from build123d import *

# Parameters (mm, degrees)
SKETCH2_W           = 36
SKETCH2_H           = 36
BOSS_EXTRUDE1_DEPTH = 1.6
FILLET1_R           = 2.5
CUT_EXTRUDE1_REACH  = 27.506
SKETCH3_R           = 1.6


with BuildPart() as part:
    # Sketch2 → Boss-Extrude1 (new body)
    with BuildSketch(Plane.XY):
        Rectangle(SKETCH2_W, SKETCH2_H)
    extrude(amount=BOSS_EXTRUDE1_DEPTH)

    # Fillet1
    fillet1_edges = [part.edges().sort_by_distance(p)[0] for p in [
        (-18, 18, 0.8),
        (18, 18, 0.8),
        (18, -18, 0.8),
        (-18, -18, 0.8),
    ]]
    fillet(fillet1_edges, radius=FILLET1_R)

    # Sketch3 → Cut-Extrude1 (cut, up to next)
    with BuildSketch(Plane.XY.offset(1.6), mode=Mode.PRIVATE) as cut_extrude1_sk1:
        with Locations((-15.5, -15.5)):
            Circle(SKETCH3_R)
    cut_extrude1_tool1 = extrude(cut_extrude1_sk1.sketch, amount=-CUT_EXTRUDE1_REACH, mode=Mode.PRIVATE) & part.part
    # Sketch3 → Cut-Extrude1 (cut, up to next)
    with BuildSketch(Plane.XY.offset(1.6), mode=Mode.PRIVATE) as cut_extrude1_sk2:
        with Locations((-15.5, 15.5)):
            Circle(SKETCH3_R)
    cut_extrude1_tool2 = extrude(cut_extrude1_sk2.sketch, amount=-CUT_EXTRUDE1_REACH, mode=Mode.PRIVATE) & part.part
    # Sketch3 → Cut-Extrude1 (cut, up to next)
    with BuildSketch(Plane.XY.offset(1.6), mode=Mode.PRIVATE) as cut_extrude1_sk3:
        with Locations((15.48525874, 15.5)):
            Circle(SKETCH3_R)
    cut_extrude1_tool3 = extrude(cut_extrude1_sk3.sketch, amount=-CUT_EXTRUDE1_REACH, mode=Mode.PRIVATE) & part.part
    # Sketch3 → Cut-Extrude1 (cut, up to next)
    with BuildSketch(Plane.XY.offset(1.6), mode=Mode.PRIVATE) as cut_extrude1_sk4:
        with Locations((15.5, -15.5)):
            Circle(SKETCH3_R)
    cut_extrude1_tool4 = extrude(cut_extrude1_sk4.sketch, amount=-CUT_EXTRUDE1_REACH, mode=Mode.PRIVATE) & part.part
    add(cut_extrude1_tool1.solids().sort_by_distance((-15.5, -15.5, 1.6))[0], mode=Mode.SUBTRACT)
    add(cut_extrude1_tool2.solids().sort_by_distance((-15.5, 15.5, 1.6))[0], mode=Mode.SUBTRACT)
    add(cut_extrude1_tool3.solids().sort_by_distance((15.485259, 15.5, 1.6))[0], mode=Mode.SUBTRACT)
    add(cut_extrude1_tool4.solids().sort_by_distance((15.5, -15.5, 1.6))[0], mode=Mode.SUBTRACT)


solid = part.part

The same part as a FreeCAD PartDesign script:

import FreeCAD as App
import Part
import Sketcher
from FreeCAD import Vector
Q = App.Units.Quantity


def edges_at(feature, points):
    """Names of the edges that pass closest to the given points."""
    edges = feature.Shape.Edges
    near = lambda p: min(range(len(edges)), key=lambda i: edges[i].distToShape(Part.Vertex(*p))[0])
    return sorted({f"Edge{near(p) + 1}" for p in points})

doc = App.newDocument("Part")
body = doc.addObject("PartDesign::Body", "Body")

# Sketch on XY plane
sketch1 = body.newObject("Sketcher::SketchObject", "Sketch")
sketch1.AttachmentSupport = (doc.getObject("XY_Plane"), [""])
sketch1.MapMode = "FlatFace"
sketch1.addGeometry([
    Part.LineSegment(Vector(-18, 18, 0), Vector(-18, -18, 0)),
    Part.LineSegment(Vector(-18, -18, 0), Vector(18, -18, 0)),
    Part.LineSegment(Vector(18, -18, 0), Vector(18, 18, 0)),
    Part.LineSegment(Vector(18, 18, 0), Vector(-18, 18, 0)),
], False)
sketch1.addConstraint([
    Sketcher.Constraint("Coincident", 0, 2, 1, 1),
    Sketcher.Constraint("Coincident", 1, 2, 2, 1),
    Sketcher.Constraint("Coincident", 2, 2, 3, 1),
    Sketcher.Constraint("Coincident", 3, 2, 0, 1),
    Sketcher.Constraint("Vertical", 0),
    Sketcher.Constraint("Horizontal", 1),
    Sketcher.Constraint("Vertical", 2),
    Sketcher.Constraint("Horizontal", 3),
    Sketcher.Constraint("Symmetric", 0, 2, 2, 2, -1, 1),
    Sketcher.Constraint("Equal", 3, 0),
    Sketcher.Constraint("DistanceX", 1, 1, 1, 2, Q("36 mm")),
])
pad1 = body.newObject("PartDesign::Pad", "Pad")
pad1.Profile = sketch1
pad1.Length = 1.6
doc.recompute()

fillet = body.newObject("PartDesign::Fillet", "Fillet")
fillet.Base = (pad1, edges_at(pad1, [
    (-18, 18, 0.8),
    (18, 18, 0.8),
    (18, -18, 0.8),
    (-18, -18, 0.8),
]))
fillet.Radius = 2.5

# Sketch on XY plane
sketch2 = body.newObject("Sketcher::SketchObject", "Sketch001")
sketch2.AttachmentSupport = (doc.getObject("XY_Plane"), [""])
sketch2.MapMode = "FlatFace"
sketch2.AttachmentOffset = App.Placement(Vector(0, 0, 1.6), App.Rotation())
sketch2.addGeometry(Part.Circle(Vector(-15.5, -15.5, 0), Vector(0, 0, 1), 1.6), False)
sketch2.addConstraint([
    Sketcher.Constraint("Diameter", 0, Q("3.2 mm")),
    Sketcher.Constraint("DistanceX", 0, 3, -1, 1, Q("15.5 mm")),
    Sketcher.Constraint("DistanceY", 0, 3, -1, 1, Q("15.5 mm")),
])
pocket1 = body.newObject("PartDesign::Pocket", "Pocket")
pocket1.Profile = sketch2
pocket1.Type = "UpToFirst"

# Sketch on XY plane
sketch3 = body.newObject("Sketcher::SketchObject", "Sketch002")
sketch3.AttachmentSupport = (doc.getObject("XY_Plane"), [""])
sketch3.MapMode = "FlatFace"
sketch3.AttachmentOffset = App.Placement(Vector(0, 0, 1.6), App.Rotation())
sketch3.addGeometry(Part.Circle(Vector(-15.5, 15.5, 0), Vector(0, 0, 1), 1.6), False)
sketch3.addConstraint([
    Sketcher.Constraint("Diameter", 0, Q("3.2 mm")),
    Sketcher.Constraint("DistanceX", 0, 3, -1, 1, Q("15.5 mm")),
    Sketcher.Constraint("DistanceY", -1, 1, 0, 3, Q("15.5 mm")),
])
pocket2 = body.newObject("PartDesign::Pocket", "Pocket001")
pocket2.Profile = sketch3
pocket2.Type = "UpToFirst"

# Sketch on XY plane
sketch4 = body.newObject("Sketcher::SketchObject", "Sketch003")
sketch4.AttachmentSupport = (doc.getObject("XY_Plane"), [""])
sketch4.MapMode = "FlatFace"
sketch4.AttachmentOffset = App.Placement(Vector(0, 0, 1.6), App.Rotation())
sketch4.addGeometry(Part.Circle(Vector(15.485259, 15.5, 0), Vector(0, 0, 1), 1.6), False)
sketch4.addConstraint([
    Sketcher.Constraint("Diameter", 0, Q("3.2 mm")),
    Sketcher.Constraint("DistanceY", -1, 1, 0, 3, Q("15.5 mm")),
    Sketcher.Constraint("DistanceX", -1, 1, 0, 3, Q("15.485259 mm")),
])
pocket3 = body.newObject("PartDesign::Pocket", "Pocket002")
pocket3.Profile = sketch4
pocket3.Type = "UpToFirst"

# Sketch on XY plane
sketch5 = body.newObject("Sketcher::SketchObject", "Sketch004")
sketch5.AttachmentSupport = (doc.getObject("XY_Plane"), [""])
sketch5.MapMode = "FlatFace"
sketch5.AttachmentOffset = App.Placement(Vector(0, 0, 1.6), App.Rotation())
sketch5.addGeometry(Part.Circle(Vector(15.5, -15.5, 0), Vector(0, 0, 1), 1.6), False)
sketch5.addConstraint([
    Sketcher.Constraint("Diameter", 0, Q("3.2 mm")),
    Sketcher.Constraint("DistanceX", -1, 1, 0, 3, Q("15.5 mm")),
    Sketcher.Constraint("DistanceY", 0, 3, -1, 1, Q("15.5 mm")),
])
pocket4 = body.newObject("PartDesign::Pocket", "Pocket003")
pocket4.Profile = sketch5
pocket4.Type = "UpToFirst"

doc.recompute()
